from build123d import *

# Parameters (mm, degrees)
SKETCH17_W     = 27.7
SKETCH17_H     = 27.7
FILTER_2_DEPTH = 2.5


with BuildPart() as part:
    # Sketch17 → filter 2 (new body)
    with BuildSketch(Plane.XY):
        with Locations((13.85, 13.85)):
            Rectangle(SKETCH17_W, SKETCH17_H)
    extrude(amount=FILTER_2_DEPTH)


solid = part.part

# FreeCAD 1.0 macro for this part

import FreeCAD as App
import Part
import Sketcher
from FreeCAD import Vector
Q = App.Units.Quantity


def add_polygon(sketch, points):
    """Adds a closed chain of lines whose ends are joined by coincident constraints."""
    first, n = sketch.GeometryCount, len(points)
    for a, b in zip(points, points[1:] + points[:1]):
        sketch.addGeometry(Part.LineSegment(App.Vector(*a, 0), App.Vector(*b, 0)), False)
    for i in range(n):
        sketch.addConstraint(Sketcher.Constraint("Coincident", first + i, 2, first + (i + 1) % n, 1))

doc = App.newDocument("Part")
body = doc.addObject("PartDesign::Body", "Body")

sketch1 = body.newObject("Sketcher::SketchObject", "Sketch")
sketch1.AttachmentSupport = (doc.getObject("XY_Plane"), [""])
sketch1.MapMode = "FlatFace"
add_polygon(sketch1, [(0, 28), (0, 0), (28, 0), (28, 28)])
sketch1.addConstraint([
    Sketcher.Constraint("Vertical", 0),
    Sketcher.Constraint("Horizontal", 1),
    Sketcher.Constraint("Vertical", 2),
    Sketcher.Constraint("Horizontal", 3),
    Sketcher.Constraint("Coincident", 0, 2, -1, 1),
    Sketcher.Constraint("Equal", 3, 0),
    Sketcher.Constraint("DistanceX", 1, 1, 1, 2, Q("27.7 mm")),
])
pad1 = body.newObject("PartDesign::Pad", "Pad")
pad1.Profile = sketch1
pad1.Length = 2.5

doc.recompute()
